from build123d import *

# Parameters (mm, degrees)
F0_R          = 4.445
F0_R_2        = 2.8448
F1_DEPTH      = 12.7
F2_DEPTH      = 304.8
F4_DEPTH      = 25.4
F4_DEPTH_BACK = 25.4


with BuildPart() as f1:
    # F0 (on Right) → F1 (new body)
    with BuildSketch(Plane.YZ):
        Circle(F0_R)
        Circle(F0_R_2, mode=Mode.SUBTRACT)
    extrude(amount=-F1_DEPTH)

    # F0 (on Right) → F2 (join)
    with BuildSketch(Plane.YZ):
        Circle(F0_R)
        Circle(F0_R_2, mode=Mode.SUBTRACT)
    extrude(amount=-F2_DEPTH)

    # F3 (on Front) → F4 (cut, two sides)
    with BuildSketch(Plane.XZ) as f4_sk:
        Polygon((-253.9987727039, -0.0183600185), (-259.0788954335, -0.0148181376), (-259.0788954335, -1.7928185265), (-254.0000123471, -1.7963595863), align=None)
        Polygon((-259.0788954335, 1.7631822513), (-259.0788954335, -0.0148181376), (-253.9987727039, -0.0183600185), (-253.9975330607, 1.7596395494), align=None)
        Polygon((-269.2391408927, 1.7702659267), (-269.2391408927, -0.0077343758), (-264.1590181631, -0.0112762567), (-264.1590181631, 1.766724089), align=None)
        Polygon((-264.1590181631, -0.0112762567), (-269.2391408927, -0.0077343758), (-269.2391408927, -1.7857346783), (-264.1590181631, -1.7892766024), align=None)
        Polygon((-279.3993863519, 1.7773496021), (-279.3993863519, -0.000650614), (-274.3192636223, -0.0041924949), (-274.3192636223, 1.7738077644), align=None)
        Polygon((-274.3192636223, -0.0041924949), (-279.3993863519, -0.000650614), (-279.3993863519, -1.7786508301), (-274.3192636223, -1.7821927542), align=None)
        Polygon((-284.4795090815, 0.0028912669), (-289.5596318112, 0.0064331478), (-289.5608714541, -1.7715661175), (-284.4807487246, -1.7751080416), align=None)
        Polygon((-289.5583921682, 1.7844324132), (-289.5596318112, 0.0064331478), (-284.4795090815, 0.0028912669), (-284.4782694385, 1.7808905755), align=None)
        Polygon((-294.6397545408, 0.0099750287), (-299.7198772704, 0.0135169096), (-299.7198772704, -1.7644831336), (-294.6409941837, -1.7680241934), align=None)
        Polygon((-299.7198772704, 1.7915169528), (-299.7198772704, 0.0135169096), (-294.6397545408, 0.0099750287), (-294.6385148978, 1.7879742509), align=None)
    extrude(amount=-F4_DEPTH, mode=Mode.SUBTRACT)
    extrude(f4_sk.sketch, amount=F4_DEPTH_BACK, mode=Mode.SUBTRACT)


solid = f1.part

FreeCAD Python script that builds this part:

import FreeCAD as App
import Part
import Sketcher

V = App.Vector
Q = App.Units.Quantity


def add_polygon(sketch, points):
    """Adds a closed chain of lines whose ends are joined by coincident constraints."""
    first, n = sketch.GeometryCount, len(points)
    for a, b in zip(points, points[1:] + points[:1]):
        sketch.addGeometry(Part.LineSegment(App.Vector(*a, 0), App.Vector(*b, 0)), False)
    for i in range(n):
        sketch.addConstraint(Sketcher.Constraint("Coincident", first + i, 2, first + (i + 1) % n, 1))

doc = App.newDocument("Part")
body = doc.addObject("PartDesign::Body", "Body")

sketch1 = doc.addObject("Sketcher::SketchObject", "Sketch")
body.addObject(sketch1)
sketch1.AttachmentSupport = (doc.YZ_Plane, [""])
sketch1.MapMode = "FlatFace"
sketch1.addGeometry(Part.Circle(V(0, 0, 0), V(0, 0, 1), 4.4), False)
sketch1.addGeometry(Part.Circle(V(0, 0, 0), V(0, 0, 1), 2.8), False)
sketch1.addConstraint(Sketcher.Constraint("Coincident", 0, 3, -1, 1))
sketch1.addConstraint(Sketcher.Constraint("Coincident", 1, 3, -1, 1))
sketch1.addConstraint(Sketcher.Constraint("Diameter", 0, Q("0.35 in")))
sketch1.addConstraint(Sketcher.Constraint("Diameter", 1, Q("0.224 in")))
pad1 = doc.addObject("PartDesign::Pad", "Pad")
body.addObject(pad1)
pad1.Profile = sketch1
pad1.Length = Q("0.5 in")
pad1.Reversed = True

sketch2 = doc.addObject("Sketcher::SketchObject", "Sketch001")
body.addObject(sketch2)
sketch2.AttachmentSupport = (doc.YZ_Plane, [""])
sketch2.MapMode = "FlatFace"
sketch2.addGeometry(Part.Circle(V(0, 0, 0), V(0, 0, 1), 4.4), False)
sketch2.addGeometry(Part.Circle(V(0, 0, 0), V(0, 0, 1), 2.8), False)
sketch2.addConstraint(Sketcher.Constraint("Coincident", 0, 3, -1, 1))
sketch2.addConstraint(Sketcher.Constraint("Coincident", 1, 3, -1, 1))
sketch2.addConstraint(Sketcher.Constraint("Diameter", 0, Q("0.35 in")))
sketch2.addConstraint(Sketcher.Constraint("Diameter", 1, Q("0.224 in")))
pad2 = doc.addObject("PartDesign::Pad", "Pad001")
body.addObject(pad2)
pad2.Profile = sketch2
pad2.Length = Q("12 in")
pad2.Reversed = True

sketch3 = doc.addObject("Sketcher::SketchObject", "Sketch002")
body.addObject(sketch3)
sketch3.AttachmentSupport = (doc.XZ_Plane, [""])
sketch3.MapMode = "FlatFace"
add_polygon(sketch3, [(-259.1, -1.8), (-254, -1.8), (-254, 1.8), (-259.1, 1.8)])
add_polygon(sketch3, [(-269.2, 1.8), (-269.2, -1.8), (-264.2, -1.8), (-264.2, 1.8)])
add_polygon(sketch3, [(-279.4, 1.8), (-279.4, -1.8), (-274.3, -1.8), (-274.3, 1.8)])
add_polygon(sketch3, [(-289.6, 0), (-289.6, -1.8), (-284.5, -1.8), (-284.5, 0), (-284.5, 1.8), (-289.6, 1.8)])
add_polygon(sketch3, [(-299.7, -1.8), (-294.6, -1.8), (-294.6, 0), (-294.6, 1.8), (-299.7, 1.8)])
sketch3.addConstraint(Sketcher.Constraint("Vertical", 3))
sketch3.addConstraint(Sketcher.Constraint("Vertical", 4))
sketch3.addConstraint(Sketcher.Constraint("Vertical", 6))
sketch3.addConstraint(Sketcher.Constraint("Vertical", 8))
sketch3.addConstraint(Sketcher.Constraint("Vertical", 10))
sketch3.addConstraint(Sketcher.Constraint("Vertical", 22))
sketch3.addConstraint(Sketcher.Constraint("Perpendicular", 0, 1))
sketch3.addConstraint(Sketcher.Constraint("Perpendicular", 1, 2))
sketch3.addConstraint(Sketcher.Constraint("Parallel", 2, 5))
sketch3.addConstraint(Sketcher.Constraint("Parallel", 5, 7))
sketch3.addConstraint(Sketcher.Constraint("Parallel", 7, 9))
sketch3.addConstraint(Sketcher.Constraint("Parallel", 9, 11))
sketch3.addConstraint(Sketcher.Constraint("Perpendicular", 11, 12))
sketch3.addConstraint(Sketcher.Constraint("Perpendicular", 12, 13))
sketch3.addConstraint(Sketcher.Constraint("Perpendicular", 13, 14))
sketch3.addConstraint(Sketcher.Constraint("Parallel", 14, 15))
sketch3.addConstraint(Sketcher.Constraint("Perpendicular", 15, 16))
sketch3.addConstraint(Sketcher.Constraint("Perpendicular", 16, 17))
sketch3.addConstraint(Sketcher.Constraint("Perpendicular", 17, 18))
sketch3.addConstraint(Sketcher.Constraint("Perpendicular", 18, 19))
sketch3.addConstraint(Sketcher.Constraint("Parallel", 19, 20))
sketch3.addConstraint(Sketcher.Constraint("Perpendicular", 20, 21))
sketch3.addConstraint(Sketcher.Constraint("Equal", 3, 4))
sketch3.addConstraint(Sketcher.Constraint("Equal", 6, 8))
sketch3.addConstraint(Sketcher.Constraint("Equal", 10, 22))
sketch3.addConstraint(Sketcher.Constraint("Equal", 7, 9))
sketch3.addConstraint(Sketcher.Constraint("Equal", 11, 13))
sketch3.addConstraint(Sketcher.Constraint("Equal", 12, 14))
sketch3.addConstraint(Sketcher.Constraint("Equal", 14, 15))
sketch3.addConstraint(Sketcher.Constraint("Equal", 0, 18))
sketch3.addConstraint(Sketcher.Constraint("Equal", 17, 19))
sketch3.addConstraint(Sketcher.Constraint("Equal", 19, 20))
sketch3.addConstraint(Sketcher.Constraint("DistanceY", 3, 2, 3, 1, Q("0.14 in")))
sketch3.addConstraint(Sketcher.Constraint("DistanceY", 0, 2, -1, 1, Q("1.79636 mm")))
sketch3.addConstraint(Sketcher.Constraint("DistanceY", 3, 2, -1, 1, Q("1.792819 mm")))
sketch3.addConstraint(Sketcher.Constraint("DistanceX", 4, 2, -1, 1, Q("269.239141 mm")))
sketch3.addConstraint(Sketcher.Constraint("DistanceX", 5, 2, -1, 1, Q("264.159018 mm")))
sketch3.addConstraint(Sketcher.Constraint("DistanceY", 8, 2, -1, 1, Q("1.778651 mm")))
sketch3.addConstraint(Sketcher.Constraint("DistanceX", 12, 2, -1, 1, Q("289.560871 mm")))
sketch3.addConstraint(Sketcher.Constraint("DistanceY", 13, 2, -1, 1, Q("1.775108 mm")))
sketch3.addConstraint(Sketcher.Constraint("DistanceX", 4, 2, 0, 2, Q("15.239129 mm")))
sketch3.addConstraint(Sketcher.Constraint("DistanceY", 3, 2, 5, 2, Q("0.003542 mm")))
sketch3.addConstraint(Sketcher.Constraint("DistanceX", 8, 2, 5, 2, Q("15.240368 mm")))
sketch3.addConstraint(Sketcher.Constraint("DistanceX", 8, 2, 3, 2, Q("20.320491 mm")))
sketch3.addConstraint(Sketcher.Constraint("DistanceY", 12, 2, 18, 2, Q("0.003542 mm")))
sketch3.addConstraint(Sketcher.Constraint("DistanceX", 18, 2, -1, 1, Q("294.640994 mm")))
pocket1 = doc.addObject("PartDesign::Pocket", "Pocket")
body.addObject(pocket1)
pocket1.Profile = sketch3
pocket1.Type = "ThroughAll"
pocket1.Midplane = True

doc.recompute()
